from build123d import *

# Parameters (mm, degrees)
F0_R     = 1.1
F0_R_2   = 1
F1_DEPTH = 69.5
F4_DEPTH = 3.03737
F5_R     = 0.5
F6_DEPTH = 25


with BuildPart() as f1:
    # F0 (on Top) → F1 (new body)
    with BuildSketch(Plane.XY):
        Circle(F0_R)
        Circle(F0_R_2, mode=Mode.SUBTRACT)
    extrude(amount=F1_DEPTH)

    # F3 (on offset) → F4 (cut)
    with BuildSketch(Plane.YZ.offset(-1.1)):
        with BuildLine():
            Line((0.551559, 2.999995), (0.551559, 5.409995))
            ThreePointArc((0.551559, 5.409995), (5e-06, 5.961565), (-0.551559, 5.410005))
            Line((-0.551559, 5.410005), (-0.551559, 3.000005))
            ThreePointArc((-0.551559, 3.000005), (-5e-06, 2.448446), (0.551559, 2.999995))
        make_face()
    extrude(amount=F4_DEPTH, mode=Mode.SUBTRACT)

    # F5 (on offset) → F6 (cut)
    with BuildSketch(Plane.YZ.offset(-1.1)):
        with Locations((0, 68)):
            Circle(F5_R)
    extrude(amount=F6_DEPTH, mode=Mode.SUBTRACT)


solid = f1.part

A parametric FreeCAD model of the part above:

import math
import FreeCAD as App
import Part
import Sketcher
Q = App.Units.Quantity

doc = App.newDocument("Part")
body = doc.addObject("PartDesign::Body", "Body")

# Sketch on XY plane
sketch1 = body.newObject("Sketcher::SketchObject", "Sketch")
sketch1.AttachmentSupport = (doc.getObject("XY_Plane"), [""])
sketch1.MapMode = "FlatFace"
sketch1.addGeometry([
    Part.Circle(App.Vector(0, 0, 0), App.Vector(0, 0, 1), 1.1),
    Part.Circle(App.Vector(0, 0, 0), App.Vector(0, 0, 1), 1),
], False)
sketch1.addConstraint([
    Sketcher.Constraint("Coincident", 0, 3, -1, 1),
    Sketcher.Constraint("Coincident", 1, 3, -1, 1),
    Sketcher.Constraint("Diameter", 1, Q("2 mm")),
    Sketcher.Constraint("Diameter", 0, Q("2.2 mm")),
])
pad1 = body.newObject("PartDesign::Pad", "Pad")
pad1.Profile = sketch1
pad1.Length = 69.5

# Sketch on YZ plane
sketch2 = body.newObject("Sketcher::SketchObject", "Sketch001")
sketch2.AttachmentSupport = (doc.getObject("YZ_Plane"), [""])
sketch2.MapMode = "FlatFace"
sketch2.AttachmentOffset = App.Placement(App.Vector(0, 0, -1.1), App.Rotation())
sketch2.addGeometry([
    Part.LineSegment(App.Vector(0.6, 3, 0), App.Vector(0.6, 5.4, 0)),
    Part.ArcOfCircle(Part.Circle(App.Vector(0, 5.4, 0), App.Vector(0, 0, 1), 0.6), math.radians(0), math.radians(180)),
    Part.LineSegment(App.Vector(-0.6, 5.4, 0), App.Vector(-0.6, 3, 0)),
    Part.ArcOfCircle(Part.Circle(App.Vector(0, 3, 0), App.Vector(0, 0, 1), 0.6), math.radians(180), math.radians(360)),
], False)
sketch2.addConstraint([
    Sketcher.Constraint("Coincident", 0, 2, 1, 1),
    Sketcher.Constraint("Tangent", 1, 2, 2, 1),
    Sketcher.Constraint("Tangent", 2, 2, 3, 1),
    Sketcher.Constraint("Coincident", 3, 2, 0, 1),
    Sketcher.Constraint("Vertical", 0),
    Sketcher.Constraint("Vertical", 2),
    Sketcher.Constraint("Symmetric", 0, 2, 1, 2, -2),
    Sketcher.Constraint("Equal", 0, 2),
    Sketcher.Constraint("DistanceY", 0, 1, 0, 2, Q("2.41 mm")),
    Sketcher.Constraint("Radius", 1, Q("0.551559 mm")),
    Sketcher.Constraint("DistanceY", -1, 1, 1, 3, Q("5.410006 mm")),
])
pocket1 = body.newObject("PartDesign::Pocket", "Pocket")
pocket1.Profile = sketch2
pocket1.Length = 3.03737
pocket1.Reversed = True

# Sketch on YZ plane
sketch3 = body.newObject("Sketcher::SketchObject", "Sketch002")
sketch3.AttachmentSupport = (doc.getObject("YZ_Plane"), [""])
sketch3.MapMode = "FlatFace"
sketch3.AttachmentOffset = App.Placement(App.Vector(0, 0, -1.1), App.Rotation())
sketch3.addGeometry(Part.Circle(App.Vector(0, 68, 0), App.Vector(0, 0, 1), 0.5), False)
sketch3.addConstraint([
    Sketcher.Constraint("PointOnObject", 0, 3, -2),
    Sketcher.Constraint("Diameter", 0, Q("1 mm")),
    Sketcher.Constraint("DistanceY", -1, 1, 0, 3, Q("68 mm")),
])
pocket2 = body.newObject("PartDesign::Pocket", "Pocket001")
pocket2.Profile = sketch3
pocket2.Length = 25
pocket2.Reversed = True

doc.recompute()
